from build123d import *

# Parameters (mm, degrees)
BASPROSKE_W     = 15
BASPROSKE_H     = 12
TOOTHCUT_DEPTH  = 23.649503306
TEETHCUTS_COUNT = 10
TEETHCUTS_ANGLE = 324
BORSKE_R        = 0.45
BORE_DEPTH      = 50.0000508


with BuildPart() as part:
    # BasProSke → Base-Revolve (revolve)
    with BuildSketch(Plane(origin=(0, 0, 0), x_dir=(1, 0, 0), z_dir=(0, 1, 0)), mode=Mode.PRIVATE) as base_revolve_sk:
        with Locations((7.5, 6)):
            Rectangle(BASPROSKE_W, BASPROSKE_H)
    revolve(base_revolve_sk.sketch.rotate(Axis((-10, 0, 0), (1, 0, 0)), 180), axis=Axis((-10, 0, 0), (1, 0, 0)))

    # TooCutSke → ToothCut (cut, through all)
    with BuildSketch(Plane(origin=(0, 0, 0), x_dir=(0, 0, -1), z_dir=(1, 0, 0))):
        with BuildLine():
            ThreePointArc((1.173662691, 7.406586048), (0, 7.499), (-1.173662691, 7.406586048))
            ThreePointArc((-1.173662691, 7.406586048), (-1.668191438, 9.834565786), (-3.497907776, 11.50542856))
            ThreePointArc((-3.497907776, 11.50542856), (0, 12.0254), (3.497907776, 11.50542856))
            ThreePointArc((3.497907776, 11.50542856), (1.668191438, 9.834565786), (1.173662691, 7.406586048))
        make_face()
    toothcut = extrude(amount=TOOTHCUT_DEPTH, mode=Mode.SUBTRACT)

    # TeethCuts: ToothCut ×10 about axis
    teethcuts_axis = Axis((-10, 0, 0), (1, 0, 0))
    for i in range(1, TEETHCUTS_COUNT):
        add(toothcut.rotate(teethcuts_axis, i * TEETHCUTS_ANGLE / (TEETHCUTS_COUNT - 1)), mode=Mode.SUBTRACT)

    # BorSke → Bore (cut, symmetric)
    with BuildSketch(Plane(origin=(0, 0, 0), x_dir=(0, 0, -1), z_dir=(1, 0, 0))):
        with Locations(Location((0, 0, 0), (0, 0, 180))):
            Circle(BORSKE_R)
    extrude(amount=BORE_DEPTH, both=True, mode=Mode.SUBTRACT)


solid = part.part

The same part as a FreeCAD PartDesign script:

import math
import FreeCAD as App
import Part
import Sketcher
Q = App.Units.Quantity


def add_polygon(sketch, points):
    """Adds a closed chain of lines whose ends are joined by coincident constraints."""
    first, n = sketch.GeometryCount, len(points)
    for a, b in zip(points, points[1:] + points[:1]):
        sketch.addGeometry(Part.LineSegment(App.Vector(*a, 0), App.Vector(*b, 0)), False)
    for i in range(n):
        sketch.addConstraint(Sketcher.Constraint("Coincident", first + i, 2, first + (i + 1) % n, 1))

doc = App.newDocument("Part")
params = doc.addObject("Spreadsheet::Sheet", "Params")
for row, (alias, value) in enumerate([
    ("sketch1_width", "15 mm"),
    ("sketch1_height", "12 mm"),
    ("revolution_angle", "360 deg"),
    ("sketch2_radius", "4 mm"),
    ("sketch3_diameter", "0.9 mm"),
    ("pocket2_length", "100.000102 mm"),
], start=1):
    params.set(f"A{row}", alias)
    params.set(f"B{row}", "=" + value)
    params.setAlias(f"B{row}", alias)

body = doc.addObject("PartDesign::Body", "Body")

sketch1 = doc.addObject("Sketcher::SketchObject", "Sketch")
body.addObject(sketch1)
sketch1.AttachmentSupport = (doc.XZ_Plane, [""])
sketch1.MapMode = "FlatFace"
add_polygon(sketch1, [(0, -12), (0, 0), (15, 0), (15, -12)])
sketch1.addConstraint(Sketcher.Constraint("Vertical", 0))
sketch1.addConstraint(Sketcher.Constraint("Horizontal", 1))
sketch1.addConstraint(Sketcher.Constraint("Vertical", 2))
sketch1.addConstraint(Sketcher.Constraint("Horizontal", 3))
sketch1.addConstraint(Sketcher.Constraint("Coincident", 0, 2, -1, 1))
sketch1.addConstraint(Sketcher.Constraint("DistanceX", 1, 1, 1, 2, Q("15 mm")))
sketch1.addConstraint(Sketcher.Constraint("DistanceY", 0, 1, 0, 2, Q("12 mm")))
sketch1.setExpression("Constraints[9]", "Params.sketch1_width")
sketch1.setExpression("Constraints[10]", "Params.sketch1_height")
revolution = doc.addObject("PartDesign::Revolution", "Revolution")
body.addObject(revolution)
revolution.Profile = sketch1
revolution.ReferenceAxis = (sketch1, ["H_Axis"])
revolution.setExpression("Angle", "Params.revolution_angle")

sketch2 = doc.addObject("Sketcher::SketchObject", "Sketch001")
body.addObject(sketch2)
sketch2.AttachmentSupport = (doc.YZ_Plane, [""])
sketch2.MapMode = "FlatFace"
sketch2.addGeometry(Part.ArcOfCircle(Part.Circle(App.Vector(0, 0, 0), App.Vector(0, 0, 1), 7.5), math.radians(-9), math.radians(9)), False)
sketch2.addGeometry(Part.ArcOfCircle(Part.Circle(App.Vector(7.9, -5.1, 0), App.Vector(0, 0, 1), 4), math.radians(24), math.radians(97)), False)
sketch2.addGeometry(Part.ArcOfCircle(Part.Circle(App.Vector(0, 0, 0), App.Vector(0, 0, 1), 12), math.radians(-17), math.radians(17)), False)
sketch2.addGeometry(Part.ArcOfCircle(Part.Circle(App.Vector(7.9, 5.1, 0), App.Vector(0, 0, 1), 4), math.radians(-97), math.radians(-24)), False)
sketch2.addConstraint(Sketcher.Constraint("Coincident", 0, 1, 1, 2))
sketch2.addConstraint(Sketcher.Constraint("Coincident", 1, 1, 2, 1))
sketch2.addConstraint(Sketcher.Constraint("Coincident", 2, 2, 3, 2))
sketch2.addConstraint(Sketcher.Constraint("Coincident", 3, 1, 0, 2))
sketch2.addConstraint(Sketcher.Constraint("Coincident", 0, 3, -1, 1))
sketch2.addConstraint(Sketcher.Constraint("Coincident", 2, 3, -1, 1))
sketch2.addConstraint(Sketcher.Constraint("Equal", 1, 3))
sketch2.addConstraint(Sketcher.Constraint("Symmetric", 1, 3, 3, 3, -1))
sketch2.addConstraint(Sketcher.Constraint("Radius", 1, Q("4 mm")))
sketch2.addConstraint(Sketcher.Constraint("Radius", 0, Q("7.499 mm")))
sketch2.addConstraint(Sketcher.Constraint("Radius", 2, Q("12.0254 mm")))
sketch2.addConstraint(Sketcher.Constraint("DistanceY", 1, 3, 1, 1, Q("1.649801 mm")))
sketch2.addConstraint(Sketcher.Constraint("DistanceX", -1, 1, 1, 3, Q("7.861508 mm")))
sketch2.setExpression("Constraints[8]", "Params.sketch2_radius")
pocket1 = doc.addObject("PartDesign::Pocket", "Pocket")
body.addObject(pocket1)
pocket1.Profile = sketch2
pocket1.Type = "ThroughAll"
pocket1.Reversed = True
doc.recompute()

polarpattern = doc.addObject("PartDesign::PolarPattern", "PolarPattern")
body.addObject(polarpattern)
polarpattern.Originals = [pocket1]
polarpattern.Axis = (doc.X_Axis, [""])
polarpattern.Angle = 360
polarpattern.Occurrences = 10
body.Tip = polarpattern

sketch3 = doc.addObject("Sketcher::SketchObject", "Sketch002")
body.addObject(sketch3)
sketch3.AttachmentSupport = (doc.YZ_Plane, [""])
sketch3.MapMode = "FlatFace"
sketch3.addGeometry(Part.Circle(App.Vector(0, 0, 0), App.Vector(0, 0, 1), 0.45), False)
sketch3.addConstraint(Sketcher.Constraint("Coincident", 0, 3, -1, 1))
sketch3.addConstraint(Sketcher.Constraint("Diameter", 0, Q("0.9 mm")))
sketch3.setExpression("Constraints[1]", "Params.sketch3_diameter")
pocket2 = doc.addObject("PartDesign::Pocket", "Pocket001")
body.addObject(pocket2)
pocket2.Profile = sketch3
pocket2.setExpression("Length", "Params.pocket2_length")
pocket2.Midplane = True

doc.recompute()
